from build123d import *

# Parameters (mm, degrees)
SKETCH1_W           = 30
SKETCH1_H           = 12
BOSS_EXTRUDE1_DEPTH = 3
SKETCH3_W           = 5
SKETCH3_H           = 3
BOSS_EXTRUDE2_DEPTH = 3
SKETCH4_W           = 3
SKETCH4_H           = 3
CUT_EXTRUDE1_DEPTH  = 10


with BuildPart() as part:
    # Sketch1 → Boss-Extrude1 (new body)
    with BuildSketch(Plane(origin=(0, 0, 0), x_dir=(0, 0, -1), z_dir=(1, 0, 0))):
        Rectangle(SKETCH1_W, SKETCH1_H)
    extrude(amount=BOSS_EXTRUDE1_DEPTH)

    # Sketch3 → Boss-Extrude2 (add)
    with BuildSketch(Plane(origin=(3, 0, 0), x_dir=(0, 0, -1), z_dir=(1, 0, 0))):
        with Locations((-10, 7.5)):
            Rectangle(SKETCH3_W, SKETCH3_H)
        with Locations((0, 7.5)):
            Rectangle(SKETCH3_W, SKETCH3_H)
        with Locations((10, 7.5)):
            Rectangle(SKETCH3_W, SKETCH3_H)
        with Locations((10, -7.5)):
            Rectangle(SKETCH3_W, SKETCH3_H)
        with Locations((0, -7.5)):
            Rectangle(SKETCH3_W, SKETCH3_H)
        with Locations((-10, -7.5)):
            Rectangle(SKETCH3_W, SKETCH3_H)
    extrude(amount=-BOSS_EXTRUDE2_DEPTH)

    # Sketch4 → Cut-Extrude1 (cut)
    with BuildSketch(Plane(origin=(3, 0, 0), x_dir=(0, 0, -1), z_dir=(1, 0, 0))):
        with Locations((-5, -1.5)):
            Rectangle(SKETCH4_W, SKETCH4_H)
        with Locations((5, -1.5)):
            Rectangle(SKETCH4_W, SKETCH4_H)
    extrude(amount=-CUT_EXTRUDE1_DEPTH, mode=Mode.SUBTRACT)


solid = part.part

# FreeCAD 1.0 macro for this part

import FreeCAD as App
import Part
import Sketcher

V = App.Vector
Q = App.Units.Quantity

doc = App.newDocument("Part")
body = doc.addObject("PartDesign::Body", "Body")

# Sketch on YZ plane
sketch1 = body.newObject("Sketcher::SketchObject", "Sketch")
sketch1.AttachmentSupport = (doc.getObject("YZ_Plane"), [""])
sketch1.MapMode = "FlatFace"
sketch1.addGeometry(Part.LineSegment(V(6, 15, 0), V(-6, 15, 0)), False)
sketch1.addGeometry(Part.LineSegment(V(-6, 15, 0), V(-6, -15, 0)), False)
sketch1.addGeometry(Part.LineSegment(V(-6, -15, 0), V(6, -15, 0)), False)
sketch1.addGeometry(Part.LineSegment(V(6, -15, 0), V(6, 15, 0)), False)
sketch1.addConstraint(Sketcher.Constraint("Coincident", 0, 2, 1, 1))
sketch1.addConstraint(Sketcher.Constraint("Coincident", 1, 2, 2, 1))
sketch1.addConstraint(Sketcher.Constraint("Coincident", 2, 2, 3, 1))
sketch1.addConstraint(Sketcher.Constraint("Coincident", 3, 2, 0, 1))
sketch1.addConstraint(Sketcher.Constraint("Horizontal", 0))
sketch1.addConstraint(Sketcher.Constraint("Vertical", 1))
sketch1.addConstraint(Sketcher.Constraint("Horizontal", 2))
sketch1.addConstraint(Sketcher.Constraint("Vertical", 3))
sketch1.addConstraint(Sketcher.Constraint("Symmetric", 0, 2, 2, 2, -1, 1))
sketch1.addConstraint(Sketcher.Constraint("DistanceX", 0, 2, 0, 1, Q("12 mm")))
sketch1.addConstraint(Sketcher.Constraint("DistanceY", 1, 2, 1, 1, Q("30 mm")))
pad1 = body.newObject("PartDesign::Pad", "Pad")
pad1.Profile = sketch1
pad1.Length = 3

# Sketch on YZ plane
sketch2 = body.newObject("Sketcher::SketchObject", "Sketch001")
sketch2.AttachmentSupport = (doc.getObject("YZ_Plane"), [""])
sketch2.MapMode = "FlatFace"
sketch2.AttachmentOffset = App.Placement(V(0, 0, 3), App.Rotation())
sketch2.addGeometry(Part.LineSegment(V(9, 12.5, 0), V(6, 12.5, 0)), False)
sketch2.addGeometry(Part.LineSegment(V(6, 12.5, 0), V(6, 7.5, 0)), False)
sketch2.addGeometry(Part.LineSegment(V(6, 7.5, 0), V(9, 7.5, 0)), False)
sketch2.addGeometry(Part.LineSegment(V(9, 7.5, 0), V(9, 12.5, 0)), False)
sketch2.addGeometry(Part.LineSegment(V(9, 2.5, 0), V(6, 2.5, 0)), False)
sketch2.addGeometry(Part.LineSegment(V(6, 2.5, 0), V(6, -2.5, 0)), False)
sketch2.addGeometry(Part.LineSegment(V(6, -2.5, 0), V(9, -2.5, 0)), False)
sketch2.addGeometry(Part.LineSegment(V(9, -2.5, 0), V(9, 2.5, 0)), False)
sketch2.addGeometry(Part.LineSegment(V(9, -7.5, 0), V(6, -7.5, 0)), False)
sketch2.addGeometry(Part.LineSegment(V(6, -7.5, 0), V(6, -12.5, 0)), False)
sketch2.addGeometry(Part.LineSegment(V(6, -12.5, 0), V(9, -12.5, 0)), False)
sketch2.addGeometry(Part.LineSegment(V(9, -12.5, 0), V(9, -7.5, 0)), False)
sketch2.addGeometry(Part.LineSegment(V(-6, -7.5, 0), V(-9, -7.5, 0)), False)
sketch2.addGeometry(Part.LineSegment(V(-9, -7.5, 0), V(-9, -12.5, 0)), False)
sketch2.addGeometry(Part.LineSegment(V(-9, -12.5, 0), V(-6, -12.5, 0)), False)
sketch2.addGeometry(Part.LineSegment(V(-6, -12.5, 0), V(-6, -7.5, 0)), False)
sketch2.addGeometry(Part.LineSegment(V(-6, 2.5, 0), V(-9, 2.5, 0)), False)
sketch2.addGeometry(Part.LineSegment(V(-9, 2.5, 0), V(-9, -2.5, 0)), False)
sketch2.addGeometry(Part.LineSegment(V(-9, -2.5, 0), V(-6, -2.5, 0)), False)
sketch2.addGeometry(Part.LineSegment(V(-6, -2.5, 0), V(-6, 2.5, 0)), False)
sketch2.addGeometry(Part.LineSegment(V(-6, 12.5, 0), V(-9, 12.5, 0)), False)
sketch2.addGeometry(Part.LineSegment(V(-9, 12.5, 0), V(-9, 7.5, 0)), False)
sketch2.addGeometry(Part.LineSegment(V(-9, 7.5, 0), V(-6, 7.5, 0)), False)
sketch2.addGeometry(Part.LineSegment(V(-6, 7.5, 0), V(-6, 12.5, 0)), False)
sketch2.addConstraint(Sketcher.Constraint("Coincident", 0, 2, 1, 1))
sketch2.addConstraint(Sketcher.Constraint("Coincident", 1, 2, 2, 1))
sketch2.addConstraint(Sketcher.Constraint("Coincident", 2, 2, 3, 1))
sketch2.addConstraint(Sketcher.Constraint("Coincident", 3, 2, 0, 1))
sketch2.addConstraint(Sketcher.Constraint("Coincident", 4, 2, 5, 1))
sketch2.addConstraint(Sketcher.Constraint("Coincident", 5, 2, 6, 1))
sketch2.addConstraint(Sketcher.Constraint("Coincident", 6, 2, 7, 1))
sketch2.addConstraint(Sketcher.Constraint("Coincident", 7, 2, 4, 1))
sketch2.addConstraint(Sketcher.Constraint("Coincident", 8, 2, 9, 1))
sketch2.addConstraint(Sketcher.Constraint("Coincident", 9, 2, 10, 1))
sketch2.addConstraint(Sketcher.Constraint("Coincident", 10, 2, 11, 1))
sketch2.addConstraint(Sketcher.Constraint("Coincident", 11, 2, 8, 1))
sketch2.addConstraint(Sketcher.Constraint("Coincident", 12, 2, 13, 1))
sketch2.addConstraint(Sketcher.Constraint("Coincident", 13, 2, 14, 1))
sketch2.addConstraint(Sketcher.Constraint("Coincident", 14, 2, 15, 1))
sketch2.addConstraint(Sketcher.Constraint("Coincident", 15, 2, 12, 1))
sketch2.addConstraint(Sketcher.Constraint("Coincident", 16, 2, 17, 1))
sketch2.addConstraint(Sketcher.Constraint("Coincident", 17, 2, 18, 1))
sketch2.addConstraint(Sketcher.Constraint("Coincident", 18, 2, 19, 1))
sketch2.addConstraint(Sketcher.Constraint("Coincident", 19, 2, 16, 1))
sketch2.addConstraint(Sketcher.Constraint("Coincident", 20, 2, 21, 1))
sketch2.addConstraint(Sketcher.Constraint("Coincident", 21, 2, 22, 1))
sketch2.addConstraint(Sketcher.Constraint("Coincident", 22, 2, 23, 1))
sketch2.addConstraint(Sketcher.Constraint("Coincident", 23, 2, 20, 1))
sketch2.addConstraint(Sketcher.Constraint("Horizontal", 0))
sketch2.addConstraint(Sketcher.Constraint("Vertical", 1))
sketch2.addConstraint(Sketcher.Constraint("Horizontal", 2))
sketch2.addConstraint(Sketcher.Constraint("Vertical", 3))
sketch2.addConstraint(Sketcher.Constraint("Horizontal", 4))
sketch2.addConstraint(Sketcher.Constraint("Vertical", 5))
sketch2.addConstraint(Sketcher.Constraint("Horizontal", 6))
sketch2.addConstraint(Sketcher.Constraint("Vertical", 7))
sketch2.addConstraint(Sketcher.Constraint("Horizontal", 8))
sketch2.addConstraint(Sketcher.Constraint("Vertical", 9))
sketch2.addConstraint(Sketcher.Constraint("Horizontal", 10))
sketch2.addConstraint(Sketcher.Constraint("Vertical", 11))
sketch2.addConstraint(Sketcher.Constraint("Horizontal", 12))
sketch2.addConstraint(Sketcher.Constraint("Vertical", 13))
sketch2.addConstraint(Sketcher.Constraint("Horizontal", 14))
sketch2.addConstraint(Sketcher.Constraint("Vertical", 15))
sketch2.addConstraint(Sketcher.Constraint("Horizontal", 16))
sketch2.addConstraint(Sketcher.Constraint("Vertical", 17))
sketch2.addConstraint(Sketcher.Constraint("Horizontal", 18))
sketch2.addConstraint(Sketcher.Constraint("Vertical", 19))
sketch2.addConstraint(Sketcher.Constraint("Horizontal", 20))
sketch2.addConstraint(Sketcher.Constraint("Vertical", 21))
sketch2.addConstraint(Sketcher.Constraint("Horizontal", 22))
sketch2.addConstraint(Sketcher.Constraint("Vertical", 23))
sketch2.addConstraint(Sketcher.Constraint("Symmetric", 2, 2, 12, 2, -1, 1))
sketch2.addConstraint(Sketcher.Constraint("Symmetric", 0, 2, 14, 2, -1, 1))
sketch2.addConstraint(Sketcher.Constraint("Symmetric", 6, 2, 16, 2, -1, 1))
sketch2.addConstraint(Sketcher.Constraint("Symmetric", 4, 2, 18, 2, -1, 1))
sketch2.addConstraint(Sketcher.Constraint("Symmetric", 10, 2, 20, 2, -1, 1))
sketch2.addConstraint(Sketcher.Constraint("Symmetric", 8, 2, 22, 2, -1, 1))
sketch2.addConstraint(Sketcher.Constraint("Symmetric", 11, 2, 12, 2, -2))
sketch2.addConstraint(Sketcher.Constraint("Symmetric", 9, 2, 14, 2, -2))
sketch2.addConstraint(Sketcher.Constraint("Horizontal", 7, 2, 16, 2))
sketch2.addConstraint(Sketcher.Constraint("Vertical", 1, 2, 4, 2))
sketch2.addConstraint(Sketcher.Constraint("Vertical", 3, 2, 6, 2))
sketch2.addConstraint(Sketcher.Constraint("Equal", 3, 5))
sketch2.addConstraint(Sketcher.Constraint("DistanceX", 0, 2, 0, 1, Q("3 mm")))
sketch2.addConstraint(Sketcher.Constraint("DistanceY", 1, 2, 1, 1, Q("5 mm")))
sketch2.addConstraint(Sketcher.Constraint("DistanceX", -1, 1, 0, 2, Q("6 mm")))
sketch2.addConstraint(Sketcher.Constraint("DistanceY", 4, 2, 1, 2, Q("5 mm")))
pad2 = body.newObject("PartDesign::Pad", "Pad001")
pad2.Profile = sketch2
pad2.Length = 3
pad2.Reversed = True

# Sketch on YZ plane
sketch3 = body.newObject("Sketcher::SketchObject", "Sketch002")
sketch3.AttachmentSupport = (doc.getObject("YZ_Plane"), [""])
sketch3.MapMode = "FlatFace"
sketch3.AttachmentOffset = App.Placement(V(0, 0, 3), App.Rotation())
sketch3.addGeometry(Part.LineSegment(V(0, 6.5, 0), V(-3, 6.5, 0)), False)
sketch3.addGeometry(Part.LineSegment(V(-3, 6.5, 0), V(-3, 3.5, 0)), False)
sketch3.addGeometry(Part.LineSegment(V(-3, 3.5, 0), V(0, 3.5, 0)), False)
sketch3.addGeometry(Part.LineSegment(V(0, 3.5, 0), V(0, 6.5, 0)), False)
sketch3.addGeometry(Part.LineSegment(V(0, -3.5, 0), V(-3, -3.5, 0)), False)
sketch3.addGeometry(Part.LineSegment(V(-3, -3.5, 0), V(-3, -6.5, 0)), False)
sketch3.addGeometry(Part.LineSegment(V(-3, -6.5, 0), V(0, -6.5, 0)), False)
sketch3.addGeometry(Part.LineSegment(V(0, -6.5, 0), V(0, -3.5, 0)), False)
sketch3.addConstraint(Sketcher.Constraint("Coincident", 0, 2, 1, 1))
sketch3.addConstraint(Sketcher.Constraint("Coincident", 1, 2, 2, 1))
sketch3.addConstraint(Sketcher.Constraint("Coincident", 2, 2, 3, 1))
sketch3.addConstraint(Sketcher.Constraint("Coincident", 3, 2, 0, 1))
sketch3.addConstraint(Sketcher.Constraint("Coincident", 4, 2, 5, 1))
sketch3.addConstraint(Sketcher.Constraint("Coincident", 5, 2, 6, 1))
sketch3.addConstraint(Sketcher.Constraint("Coincident", 6, 2, 7, 1))
sketch3.addConstraint(Sketcher.Constraint("Coincident", 7, 2, 4, 1))
sketch3.addConstraint(Sketcher.Constraint("Horizontal", 0))
sketch3.addConstraint(Sketcher.Constraint("Vertical", 1))
sketch3.addConstraint(Sketcher.Constraint("Horizontal", 2))
sketch3.addConstraint(Sketcher.Constraint("Vertical", 3))
sketch3.addConstraint(Sketcher.Constraint("Horizontal", 4))
sketch3.addConstraint(Sketcher.Constraint("Vertical", 5))
sketch3.addConstraint(Sketcher.Constraint("Horizontal", 6))
sketch3.addConstraint(Sketcher.Constraint("Vertical", 7))
sketch3.addConstraint(Sketcher.Constraint("Symmetric", 3, 2, 6, 2, -1, 1))
sketch3.addConstraint(Sketcher.Constraint("Symmetric", 1, 2, 4, 2, -1))
sketch3.addConstraint(Sketcher.Constraint("PointOnObject", 2, 2, -2))
sketch3.addConstraint(Sketcher.Constraint("Equal", 6, 1))
sketch3.addConstraint(Sketcher.Constraint("DistanceX", 0, 2, 0, 1, Q("3 mm")))
sketch3.addConstraint(Sketcher.Constraint("DistanceY", 4, 2, 1, 2, Q("7 mm")))
pocket1 = body.newObject("PartDesign::Pocket", "Pocket")
pocket1.Profile = sketch3
pocket1.Length = 10

doc.recompute()
